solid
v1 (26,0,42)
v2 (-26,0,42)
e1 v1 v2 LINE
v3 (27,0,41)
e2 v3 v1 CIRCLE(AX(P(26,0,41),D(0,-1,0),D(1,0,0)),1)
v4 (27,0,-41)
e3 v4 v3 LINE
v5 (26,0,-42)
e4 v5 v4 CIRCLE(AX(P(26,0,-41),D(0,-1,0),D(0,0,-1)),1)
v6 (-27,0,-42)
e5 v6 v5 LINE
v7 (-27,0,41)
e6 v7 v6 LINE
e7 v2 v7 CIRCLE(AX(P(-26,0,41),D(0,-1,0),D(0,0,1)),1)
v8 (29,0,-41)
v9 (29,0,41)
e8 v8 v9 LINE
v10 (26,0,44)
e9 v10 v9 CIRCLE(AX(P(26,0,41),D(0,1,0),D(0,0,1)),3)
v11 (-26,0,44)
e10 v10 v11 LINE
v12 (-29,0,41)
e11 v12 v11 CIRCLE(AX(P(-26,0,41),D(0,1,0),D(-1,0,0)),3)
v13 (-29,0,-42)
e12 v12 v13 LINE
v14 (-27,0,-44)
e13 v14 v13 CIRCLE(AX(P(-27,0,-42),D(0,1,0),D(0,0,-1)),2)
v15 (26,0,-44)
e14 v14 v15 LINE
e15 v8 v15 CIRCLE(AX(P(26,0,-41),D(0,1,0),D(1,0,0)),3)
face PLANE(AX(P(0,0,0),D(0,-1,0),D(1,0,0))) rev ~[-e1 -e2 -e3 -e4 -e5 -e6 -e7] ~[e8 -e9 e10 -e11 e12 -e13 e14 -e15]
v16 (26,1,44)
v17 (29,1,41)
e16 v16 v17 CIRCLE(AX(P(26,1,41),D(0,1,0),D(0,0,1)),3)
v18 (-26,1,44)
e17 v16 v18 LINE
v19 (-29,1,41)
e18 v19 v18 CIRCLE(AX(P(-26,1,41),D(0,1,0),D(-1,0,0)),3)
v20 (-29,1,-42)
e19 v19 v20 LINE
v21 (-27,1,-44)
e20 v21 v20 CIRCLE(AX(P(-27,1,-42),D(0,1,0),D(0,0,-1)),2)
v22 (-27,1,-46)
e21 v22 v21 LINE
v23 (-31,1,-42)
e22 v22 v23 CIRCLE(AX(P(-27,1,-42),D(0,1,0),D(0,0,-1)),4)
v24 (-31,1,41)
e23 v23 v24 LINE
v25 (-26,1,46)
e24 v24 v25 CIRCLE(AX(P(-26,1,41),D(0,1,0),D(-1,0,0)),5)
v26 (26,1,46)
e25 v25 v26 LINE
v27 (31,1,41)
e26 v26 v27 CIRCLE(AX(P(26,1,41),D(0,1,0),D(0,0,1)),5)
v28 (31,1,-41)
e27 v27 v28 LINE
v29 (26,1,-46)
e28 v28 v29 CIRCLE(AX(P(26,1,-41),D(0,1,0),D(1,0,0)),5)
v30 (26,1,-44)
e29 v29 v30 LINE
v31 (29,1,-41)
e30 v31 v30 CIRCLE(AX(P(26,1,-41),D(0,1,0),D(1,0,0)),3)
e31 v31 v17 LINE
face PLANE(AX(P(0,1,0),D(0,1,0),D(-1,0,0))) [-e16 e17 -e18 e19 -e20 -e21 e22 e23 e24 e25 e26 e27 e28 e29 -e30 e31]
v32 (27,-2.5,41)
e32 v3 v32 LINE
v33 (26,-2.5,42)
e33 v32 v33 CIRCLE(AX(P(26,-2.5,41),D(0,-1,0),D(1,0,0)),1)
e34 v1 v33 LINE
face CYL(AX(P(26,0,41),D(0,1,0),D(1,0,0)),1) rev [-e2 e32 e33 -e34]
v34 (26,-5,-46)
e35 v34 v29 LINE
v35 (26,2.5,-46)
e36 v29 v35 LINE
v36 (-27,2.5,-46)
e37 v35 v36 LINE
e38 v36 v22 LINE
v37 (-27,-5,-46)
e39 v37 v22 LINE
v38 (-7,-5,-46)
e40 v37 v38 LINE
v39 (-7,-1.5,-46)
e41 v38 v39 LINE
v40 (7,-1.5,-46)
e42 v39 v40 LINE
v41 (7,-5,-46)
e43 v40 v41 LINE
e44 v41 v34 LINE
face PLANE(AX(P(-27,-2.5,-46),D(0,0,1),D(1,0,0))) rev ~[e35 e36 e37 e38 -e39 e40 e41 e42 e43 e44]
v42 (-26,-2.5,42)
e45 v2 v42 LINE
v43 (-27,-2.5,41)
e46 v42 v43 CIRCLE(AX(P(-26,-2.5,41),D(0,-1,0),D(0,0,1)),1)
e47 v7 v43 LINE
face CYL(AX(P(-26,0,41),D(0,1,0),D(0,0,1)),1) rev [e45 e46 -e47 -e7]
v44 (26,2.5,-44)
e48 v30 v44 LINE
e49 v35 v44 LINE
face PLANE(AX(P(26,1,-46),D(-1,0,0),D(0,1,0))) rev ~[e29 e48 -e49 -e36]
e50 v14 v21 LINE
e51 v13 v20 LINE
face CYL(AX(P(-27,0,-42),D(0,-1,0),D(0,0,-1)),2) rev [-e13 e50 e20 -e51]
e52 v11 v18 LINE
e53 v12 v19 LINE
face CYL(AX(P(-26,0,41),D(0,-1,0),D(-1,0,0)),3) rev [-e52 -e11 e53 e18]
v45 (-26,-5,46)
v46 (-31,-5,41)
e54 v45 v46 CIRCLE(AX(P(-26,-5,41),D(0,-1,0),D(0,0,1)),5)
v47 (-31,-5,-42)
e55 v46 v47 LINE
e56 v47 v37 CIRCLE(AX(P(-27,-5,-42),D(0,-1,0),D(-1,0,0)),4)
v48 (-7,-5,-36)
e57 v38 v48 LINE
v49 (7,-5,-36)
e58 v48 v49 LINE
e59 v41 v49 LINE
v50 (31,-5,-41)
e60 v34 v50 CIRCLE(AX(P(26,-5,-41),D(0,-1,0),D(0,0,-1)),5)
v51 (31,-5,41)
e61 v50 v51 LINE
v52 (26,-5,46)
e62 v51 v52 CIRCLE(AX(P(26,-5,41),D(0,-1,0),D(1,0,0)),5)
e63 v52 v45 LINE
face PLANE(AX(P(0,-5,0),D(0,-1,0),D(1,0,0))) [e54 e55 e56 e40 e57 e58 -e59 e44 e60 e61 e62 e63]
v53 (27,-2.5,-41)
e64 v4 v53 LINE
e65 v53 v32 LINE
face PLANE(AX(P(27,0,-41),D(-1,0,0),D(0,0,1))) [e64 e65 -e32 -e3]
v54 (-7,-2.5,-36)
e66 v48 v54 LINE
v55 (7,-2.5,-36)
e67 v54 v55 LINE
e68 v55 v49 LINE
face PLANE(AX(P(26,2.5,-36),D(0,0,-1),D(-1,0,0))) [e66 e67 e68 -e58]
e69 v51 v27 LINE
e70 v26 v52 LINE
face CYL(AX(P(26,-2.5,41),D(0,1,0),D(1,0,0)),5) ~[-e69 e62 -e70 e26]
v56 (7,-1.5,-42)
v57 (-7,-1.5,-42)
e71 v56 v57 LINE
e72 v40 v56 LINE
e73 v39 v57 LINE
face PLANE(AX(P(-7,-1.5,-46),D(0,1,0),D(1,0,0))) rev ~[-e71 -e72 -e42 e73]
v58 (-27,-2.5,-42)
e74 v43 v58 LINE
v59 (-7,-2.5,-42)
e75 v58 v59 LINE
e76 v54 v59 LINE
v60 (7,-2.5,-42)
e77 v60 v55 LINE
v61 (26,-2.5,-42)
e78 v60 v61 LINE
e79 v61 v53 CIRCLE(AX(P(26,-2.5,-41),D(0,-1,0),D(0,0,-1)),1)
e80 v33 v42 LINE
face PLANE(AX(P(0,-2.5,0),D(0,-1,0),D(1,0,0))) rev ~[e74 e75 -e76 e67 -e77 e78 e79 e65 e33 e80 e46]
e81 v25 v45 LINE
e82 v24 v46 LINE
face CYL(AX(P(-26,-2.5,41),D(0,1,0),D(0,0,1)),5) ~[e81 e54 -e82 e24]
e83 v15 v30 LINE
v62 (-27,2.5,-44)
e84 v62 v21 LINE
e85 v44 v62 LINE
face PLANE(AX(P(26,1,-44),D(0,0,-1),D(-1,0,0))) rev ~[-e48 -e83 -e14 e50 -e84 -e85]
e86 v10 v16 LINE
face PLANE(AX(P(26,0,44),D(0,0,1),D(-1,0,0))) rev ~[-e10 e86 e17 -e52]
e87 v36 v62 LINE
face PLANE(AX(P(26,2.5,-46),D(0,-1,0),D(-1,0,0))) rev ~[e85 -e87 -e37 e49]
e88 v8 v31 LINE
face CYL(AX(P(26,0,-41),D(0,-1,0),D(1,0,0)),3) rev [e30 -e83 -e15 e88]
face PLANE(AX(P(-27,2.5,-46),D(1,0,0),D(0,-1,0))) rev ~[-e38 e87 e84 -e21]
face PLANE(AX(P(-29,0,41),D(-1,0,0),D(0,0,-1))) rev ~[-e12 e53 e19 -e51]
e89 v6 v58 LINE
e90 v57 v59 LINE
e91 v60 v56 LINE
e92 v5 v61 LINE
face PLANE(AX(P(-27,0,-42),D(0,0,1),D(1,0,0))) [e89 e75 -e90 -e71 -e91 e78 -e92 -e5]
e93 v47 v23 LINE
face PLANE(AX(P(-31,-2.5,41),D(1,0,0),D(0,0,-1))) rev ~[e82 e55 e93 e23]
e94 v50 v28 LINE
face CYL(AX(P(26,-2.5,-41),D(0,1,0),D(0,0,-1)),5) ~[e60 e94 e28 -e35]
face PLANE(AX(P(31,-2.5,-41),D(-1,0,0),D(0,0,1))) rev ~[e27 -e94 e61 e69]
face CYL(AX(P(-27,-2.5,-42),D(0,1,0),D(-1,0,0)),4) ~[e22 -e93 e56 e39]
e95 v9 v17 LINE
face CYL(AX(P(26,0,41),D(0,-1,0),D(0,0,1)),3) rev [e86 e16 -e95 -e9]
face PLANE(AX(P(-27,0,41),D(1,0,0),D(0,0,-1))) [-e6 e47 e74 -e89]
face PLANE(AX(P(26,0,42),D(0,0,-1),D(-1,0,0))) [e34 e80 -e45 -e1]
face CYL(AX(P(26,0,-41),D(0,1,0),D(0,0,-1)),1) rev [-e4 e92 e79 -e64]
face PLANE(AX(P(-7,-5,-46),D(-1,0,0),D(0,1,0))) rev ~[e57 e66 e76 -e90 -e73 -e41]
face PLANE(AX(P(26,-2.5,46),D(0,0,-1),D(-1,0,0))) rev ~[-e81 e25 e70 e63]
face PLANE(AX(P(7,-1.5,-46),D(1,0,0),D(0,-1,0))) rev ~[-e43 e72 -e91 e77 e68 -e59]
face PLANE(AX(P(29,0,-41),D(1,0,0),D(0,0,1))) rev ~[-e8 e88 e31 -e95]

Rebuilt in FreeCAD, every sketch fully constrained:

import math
import FreeCAD as App
import Part
import Sketcher
from FreeCAD import Vector
Q = App.Units.Quantity


def add_polygon(sketch, points):
    """Adds a closed chain of lines whose ends are joined by coincident constraints."""
    first, n = sketch.GeometryCount, len(points)
    for a, b in zip(points, points[1:] + points[:1]):
        sketch.addGeometry(Part.LineSegment(App.Vector(*a, 0), App.Vector(*b, 0)), False)
    for i in range(n):
        sketch.addConstraint(Sketcher.Constraint("Coincident", first + i, 2, first + (i + 1) % n, 1))

doc = App.newDocument("Part")
body = doc.addObject("PartDesign::Body", "Body")

# Sketch on XZ plane
sketch1 = body.newObject("Sketcher::SketchObject", "Sketch")
sketch1.AttachmentSupport = (doc.getObject("XZ_Plane"), [""])
sketch1.MapMode = "FlatFace"
sketch1.addGeometry(Part.ArcOfCircle(Part.Circle(Vector(-27, -42, 0), Vector(0, 0, 1), 4), math.radians(180), math.radians(270)), False)
sketch1.addGeometry(Part.LineSegment(Vector(-31, -42, 0), Vector(-31, 41, 0)), False)
sketch1.addGeometry(Part.ArcOfCircle(Part.Circle(Vector(-26, 41, 0), Vector(0, 0, 1), 5), math.radians(90), math.radians(180)), False)
sketch1.addGeometry(Part.LineSegment(Vector(-26, 46, 0), Vector(26, 46, 0)), False)
sketch1.addGeometry(Part.ArcOfCircle(Part.Circle(Vector(26, 41, 0), Vector(0, 0, 1), 5), math.radians(0), math.radians(90)), False)
sketch1.addGeometry(Part.LineSegment(Vector(31, 41, 0), Vector(31, -41, 0)), False)
sketch1.addGeometry(Part.ArcOfCircle(Part.Circle(Vector(26, -41, 0), Vector(0, 0, 1), 5), math.radians(-90), math.radians(0)), False)
sketch1.addGeometry(Part.LineSegment(Vector(26, -46, 0), Vector(-27, -46, 0)), False)
sketch1.addGeometry(Part.ArcOfCircle(Part.Circle(Vector(26, 41, 0), Vector(0, 0, 1), 3), math.radians(0), math.radians(90)), False)
sketch1.addGeometry(Part.LineSegment(Vector(26, 44, 0), Vector(-26, 44, 0)), False)
sketch1.addGeometry(Part.ArcOfCircle(Part.Circle(Vector(-26, 41, 0), Vector(0, 0, 1), 3), math.radians(90), math.radians(180)), False)
sketch1.addGeometry(Part.LineSegment(Vector(-29, 41, 0), Vector(-29, -42, 0)), False)
sketch1.addGeometry(Part.ArcOfCircle(Part.Circle(Vector(-27, -42, 0), Vector(0, 0, 1), 2), math.radians(180), math.radians(270)), False)
sketch1.addGeometry(Part.LineSegment(Vector(-27, -44, 0), Vector(26, -44, 0)), False)
sketch1.addGeometry(Part.ArcOfCircle(Part.Circle(Vector(26, -41, 0), Vector(0, 0, 1), 3), math.radians(-90), math.radians(0)), False)
sketch1.addGeometry(Part.LineSegment(Vector(29, -41, 0), Vector(29, 41, 0)), False)
sketch1.addConstraint(Sketcher.Constraint("Tangent", 0, 1, 1, 1))
sketch1.addConstraint(Sketcher.Constraint("Tangent", 1, 2, 2, 2))
sketch1.addConstraint(Sketcher.Constraint("Tangent", 2, 1, 3, 1))
sketch1.addConstraint(Sketcher.Constraint("Tangent", 3, 2, 4, 2))
sketch1.addConstraint(Sketcher.Constraint("Tangent", 4, 1, 5, 1))
sketch1.addConstraint(Sketcher.Constraint("Tangent", 5, 2, 6, 2))
sketch1.addConstraint(Sketcher.Constraint("Tangent", 6, 1, 7, 1))
sketch1.addConstraint(Sketcher.Constraint("Tangent", 7, 2, 0, 2))
sketch1.addConstraint(Sketcher.Constraint("Tangent", 8, 2, 9, 1))
sketch1.addConstraint(Sketcher.Constraint("Tangent", 9, 2, 10, 1))
sketch1.addConstraint(Sketcher.Constraint("Tangent", 10, 2, 11, 1))
sketch1.addConstraint(Sketcher.Constraint("Tangent", 11, 2, 12, 1))
sketch1.addConstraint(Sketcher.Constraint("Tangent", 12, 2, 13, 1))
sketch1.addConstraint(Sketcher.Constraint("Tangent", 13, 2, 14, 1))
sketch1.addConstraint(Sketcher.Constraint("Tangent", 14, 2, 15, 1))
sketch1.addConstraint(Sketcher.Constraint("Tangent", 15, 2, 8, 1))
sketch1.addConstraint(Sketcher.Constraint("Vertical", 1))
sketch1.addConstraint(Sketcher.Constraint("Horizontal", 3))
sketch1.addConstraint(Sketcher.Constraint("Vertical", 5))
sketch1.addConstraint(Sketcher.Constraint("Horizontal", 7))
sketch1.addConstraint(Sketcher.Constraint("Horizontal", 9))
sketch1.addConstraint(Sketcher.Constraint("Vertical", 11))
sketch1.addConstraint(Sketcher.Constraint("Horizontal", 13))
sketch1.addConstraint(Sketcher.Constraint("Vertical", 15))
sketch1.addConstraint(Sketcher.Constraint("Coincident", 8, 3, 4, 3))
sketch1.addConstraint(Sketcher.Constraint("Coincident", 10, 3, 2, 3))
sketch1.addConstraint(Sketcher.Constraint("Coincident", 12, 3, 0, 3))
sketch1.addConstraint(Sketcher.Constraint("Equal", 2, 4))
sketch1.addConstraint(Sketcher.Constraint("Equal", 4, 6))
sketch1.addConstraint(Sketcher.Constraint("Equal", 10, 14))
sketch1.addConstraint(Sketcher.Constraint("Symmetric", 2, 3, 6, 3, -1, 1))
sketch1.addConstraint(Sketcher.Constraint("Radius", 8, Q("3 mm")))
sketch1.addConstraint(Sketcher.Constraint("Radius", 12, Q("2 mm")))
sketch1.addConstraint(Sketcher.Constraint("Radius", 0, Q("4 mm")))
sketch1.addConstraint(Sketcher.Constraint("DistanceX", 0, 3, 5, 2, Q("58 mm")))
sketch1.addConstraint(Sketcher.Constraint("DistanceY", 1, 1, 1, 2, Q("83 mm")))
pad1 = body.newObject("PartDesign::Pad", "Pad")
pad1.Profile = sketch1
pad1.Length = 1
pad1.Reversed = True

# Sketch on XZ plane
sketch2 = body.newObject("Sketcher::SketchObject", "Sketch001")
sketch2.AttachmentSupport = (doc.getObject("XZ_Plane"), [""])
sketch2.MapMode = "FlatFace"
sketch2.addGeometry(Part.LineSegment(Vector(26, 46, 0), Vector(-26, 46, 0)), False)
sketch2.addGeometry(Part.ArcOfCircle(Part.Circle(Vector(-26, 41, 0), Vector(0, 0, 1), 5), math.radians(90), math.radians(180)), False)
sketch2.addGeometry(Part.LineSegment(Vector(-31, 41, 0), Vector(-31, -42, 0)), False)
sketch2.addGeometry(Part.ArcOfCircle(Part.Circle(Vector(-27, -42, 0), Vector(0, 0, 1), 4), math.radians(180), math.radians(270)), False)
sketch2.addGeometry(Part.LineSegment(Vector(-27, -46, 0), Vector(26, -46, 0)), False)
sketch2.addGeometry(Part.ArcOfCircle(Part.Circle(Vector(26, -41, 0), Vector(0, 0, 1), 5), math.radians(-90), math.radians(0)), False)
sketch2.addGeometry(Part.LineSegment(Vector(31, -41, 0), Vector(31, 41, 0)), False)
sketch2.addGeometry(Part.ArcOfCircle(Part.Circle(Vector(26, 41, 0), Vector(0, 0, 1), 5), math.radians(0), math.radians(90)), False)
sketch2.addGeometry(Part.LineSegment(Vector(-26, 42, 0), Vector(26, 42, 0)), False)
sketch2.addGeometry(Part.ArcOfCircle(Part.Circle(Vector(26, 41, 0), Vector(0, 0, 1), 1), math.radians(0), math.radians(90)), False)
sketch2.addGeometry(Part.LineSegment(Vector(27, 41, 0), Vector(27, -41, 0)), False)
sketch2.addGeometry(Part.ArcOfCircle(Part.Circle(Vector(26, -41, 0), Vector(0, 0, 1), 1), math.radians(-90), math.radians(0)), False)
sketch2.addGeometry(Part.LineSegment(Vector(26, -42, 0), Vector(-27, -42, 0)), False)
sketch2.addGeometry(Part.LineSegment(Vector(-27, -42, 0), Vector(-27, 41, 0)), False)
sketch2.addGeometry(Part.ArcOfCircle(Part.Circle(Vector(-26, 41, 0), Vector(0, 0, 1), 1), math.radians(90), math.radians(180)), False)
sketch2.addConstraint(Sketcher.Constraint("Tangent", 0, 2, 1, 1))
sketch2.addConstraint(Sketcher.Constraint("Tangent", 1, 2, 2, 1))
sketch2.addConstraint(Sketcher.Constraint("Tangent", 2, 2, 3, 1))
sketch2.addConstraint(Sketcher.Constraint("Tangent", 3, 2, 4, 1))
sketch2.addConstraint(Sketcher.Constraint("Tangent", 4, 2, 5, 1))
sketch2.addConstraint(Sketcher.Constraint("Tangent", 5, 2, 6, 1))
sketch2.addConstraint(Sketcher.Constraint("Tangent", 6, 2, 7, 1))
sketch2.addConstraint(Sketcher.Constraint("Tangent", 7, 2, 0, 1))
sketch2.addConstraint(Sketcher.Constraint("Tangent", 8, 2, 9, 2))
sketch2.addConstraint(Sketcher.Constraint("Tangent", 9, 1, 10, 1))
sketch2.addConstraint(Sketcher.Constraint("Tangent", 10, 2, 11, 2))
sketch2.addConstraint(Sketcher.Constraint("Tangent", 11, 1, 12, 1))
sketch2.addConstraint(Sketcher.Constraint("Coincident", 12, 2, 13, 1))
sketch2.addConstraint(Sketcher.Constraint("Tangent", 13, 2, 14, 2))
sketch2.addConstraint(Sketcher.Constraint("Tangent", 14, 1, 8, 1))
sketch2.addConstraint(Sketcher.Constraint("Horizontal", 0))
sketch2.addConstraint(Sketcher.Constraint("Vertical", 2))
sketch2.addConstraint(Sketcher.Constraint("Horizontal", 4))
sketch2.addConstraint(Sketcher.Constraint("Vertical", 6))
sketch2.addConstraint(Sketcher.Constraint("Horizontal", 8))
sketch2.addConstraint(Sketcher.Constraint("Vertical", 10))
sketch2.addConstraint(Sketcher.Constraint("Horizontal", 12))
sketch2.addConstraint(Sketcher.Constraint("Vertical", 13))
sketch2.addConstraint(Sketcher.Constraint("Coincident", 9, 3, 7, 3))
sketch2.addConstraint(Sketcher.Constraint("Coincident", 11, 3, 5, 3))
sketch2.addConstraint(Sketcher.Constraint("Coincident", 14, 3, 1, 3))
sketch2.addConstraint(Sketcher.Constraint("Equal", 1, 5))
sketch2.addConstraint(Sketcher.Constraint("Equal", 5, 7))
sketch2.addConstraint(Sketcher.Constraint("Symmetric", 1, 3, 5, 3, -1, 1))
sketch2.addConstraint(Sketcher.Constraint("Horizontal", 2, 2, 11, 1))
sketch2.addConstraint(Sketcher.Constraint("Radius", 3, Q("4 mm")))
sketch2.addConstraint(Sketcher.Constraint("Radius", 1, Q("5 mm")))
sketch2.addConstraint(Sketcher.Constraint("DistanceX", 0, 2, 0, 1, Q("52 mm")))
sketch2.addConstraint(Sketcher.Constraint("DistanceY", 2, 2, 2, 1, Q("83 mm")))
pad2 = body.newObject("PartDesign::Pad", "Pad001")
pad2.Profile = sketch2
pad2.Length = 2.5

# Sketch on XY plane
sketch3 = body.newObject("Sketcher::SketchObject", "Sketch002")
sketch3.AttachmentSupport = (doc.getObject("XY_Plane"), [""])
sketch3.MapMode = "FlatFace"
sketch3.AttachmentOffset = App.Placement(Vector(0, 0, -46), App.Rotation())
add_polygon(sketch3, [(26, 1), (-27, 1), (-27, 2.5), (26, 2.5)])  # lines 0-3
sketch3.addConstraint(Sketcher.Constraint("Horizontal", 0))
sketch3.addConstraint(Sketcher.Constraint("Vertical", 1))
sketch3.addConstraint(Sketcher.Constraint("Horizontal", 2))
sketch3.addConstraint(Sketcher.Constraint("Vertical", 3))
sketch3.addConstraint(Sketcher.Constraint("DistanceY", 1, 1, 1, 2, Q("1.5 mm")))
sketch3.addConstraint(Sketcher.Constraint("DistanceX", 0, 2, 0, 1, Q("53 mm")))
sketch3.addConstraint(Sketcher.Constraint("DistanceX", 0, 2, -1, 1, Q("27 mm")))
sketch3.addConstraint(Sketcher.Constraint("DistanceY", -1, 1, 0, 2, Q("1 mm")))
pad3 = body.newObject("PartDesign::Pad", "Pad002")
pad3.Profile = sketch3
pad3.Length = 2

# Sketch on XZ plane
sketch4 = body.newObject("Sketcher::SketchObject", "Sketch003")
sketch4.AttachmentSupport = (doc.getObject("XZ_Plane"), [""])
sketch4.MapMode = "FlatFace"
sketch4.AttachmentOffset = App.Placement(Vector(0, 0, 2.5), App.Rotation())
sketch4.addGeometry(Part.ArcOfCircle(Part.Circle(Vector(26, 41, 0), Vector(0, 0, 1), 5), math.radians(0), math.radians(90)), False)
sketch4.addGeometry(Part.LineSegment(Vector(26, 46, 0), Vector(-26, 46, 0)), False)
sketch4.addGeometry(Part.ArcOfCircle(Part.Circle(Vector(-26, 41, 0), Vector(0, 0, 1), 5), math.radians(90), math.radians(180)), False)
sketch4.addGeometry(Part.LineSegment(Vector(-31, 41, 0), Vector(-31, -42, 0)), False)
sketch4.addGeometry(Part.ArcOfCircle(Part.Circle(Vector(-27, -42, 0), Vector(0, 0, 1), 4), math.radians(180), math.radians(270)), False)
sketch4.addGeometry(Part.LineSegment(Vector(-27, -46, 0), Vector(26, -46, 0)), False)
sketch4.addGeometry(Part.ArcOfCircle(Part.Circle(Vector(26, -41, 0), Vector(0, 0, 1), 5), math.radians(-90), math.radians(0)), False)
sketch4.addGeometry(Part.LineSegment(Vector(31, -41, 0), Vector(31, 41, 0)), False)
sketch4.addConstraint(Sketcher.Constraint("Tangent", 0, 2, 1, 1))
sketch4.addConstraint(Sketcher.Constraint("Tangent", 1, 2, 2, 1))
sketch4.addConstraint(Sketcher.Constraint("Tangent", 2, 2, 3, 1))
sketch4.addConstraint(Sketcher.Constraint("Tangent", 3, 2, 4, 1))
sketch4.addConstraint(Sketcher.Constraint("Tangent", 4, 2, 5, 1))
sketch4.addConstraint(Sketcher.Constraint("Tangent", 5, 2, 6, 1))
sketch4.addConstraint(Sketcher.Constraint("Tangent", 6, 2, 7, 1))
sketch4.addConstraint(Sketcher.Constraint("Tangent", 7, 2, 0, 1))
sketch4.addConstraint(Sketcher.Constraint("Horizontal", 1))
sketch4.addConstraint(Sketcher.Constraint("Vertical", 3))
sketch4.addConstraint(Sketcher.Constraint("Horizontal", 5))
sketch4.addConstraint(Sketcher.Constraint("Vertical", 7))
sketch4.addConstraint(Sketcher.Constraint("Equal", 0, 2))
sketch4.addConstraint(Sketcher.Constraint("Equal", 2, 6))
sketch4.addConstraint(Sketcher.Constraint("Symmetric", 2, 3, 6, 3, -1, 1))
sketch4.addConstraint(Sketcher.Constraint("Radius", 0, Q("5 mm")))
sketch4.addConstraint(Sketcher.Constraint("Radius", 4, Q("4 mm")))
sketch4.addConstraint(Sketcher.Constraint("DistanceX", 1, 2, 1, 1, Q("52 mm")))
sketch4.addConstraint(Sketcher.Constraint("DistanceY", 3, 2, 3, 1, Q("83 mm")))
pad4 = body.newObject("PartDesign::Pad", "Pad003")
pad4.Profile = sketch4
pad4.Length = 2.5

# Sketch on XY plane
sketch5 = body.newObject("Sketcher::SketchObject", "Sketch004")
sketch5.AttachmentSupport = (doc.getObject("XY_Plane"), [""])
sketch5.MapMode = "FlatFace"
sketch5.AttachmentOffset = App.Placement(Vector(0, 0, -46), App.Rotation())
add_polygon(sketch5, [(7, -5), (-7, -5), (-7, -1.5), (7, -1.5)])  # lines 0-3
sketch5.addConstraint(Sketcher.Constraint("Horizontal", 0))
sketch5.addConstraint(Sketcher.Constraint("Vertical", 1))
sketch5.addConstraint(Sketcher.Constraint("Horizontal", 2))
sketch5.addConstraint(Sketcher.Constraint("Vertical", 3))
sketch5.addConstraint(Sketcher.Constraint("DistanceX", 0, 2, 0, 1, Q("14 mm")))
sketch5.addConstraint(Sketcher.Constraint("DistanceY", 1, 1, 1, 2, Q("3.5 mm")))
sketch5.addConstraint(Sketcher.Constraint("DistanceX", 0, 2, -1, 1, Q("7 mm")))
sketch5.addConstraint(Sketcher.Constraint("DistanceY", 0, 2, -1, 1, Q("5 mm")))
pocket1 = body.newObject("PartDesign::Pocket", "Pocket")
pocket1.Profile = sketch5
pocket1.Length = 10
pocket1.Reversed = True

doc.recompute()
